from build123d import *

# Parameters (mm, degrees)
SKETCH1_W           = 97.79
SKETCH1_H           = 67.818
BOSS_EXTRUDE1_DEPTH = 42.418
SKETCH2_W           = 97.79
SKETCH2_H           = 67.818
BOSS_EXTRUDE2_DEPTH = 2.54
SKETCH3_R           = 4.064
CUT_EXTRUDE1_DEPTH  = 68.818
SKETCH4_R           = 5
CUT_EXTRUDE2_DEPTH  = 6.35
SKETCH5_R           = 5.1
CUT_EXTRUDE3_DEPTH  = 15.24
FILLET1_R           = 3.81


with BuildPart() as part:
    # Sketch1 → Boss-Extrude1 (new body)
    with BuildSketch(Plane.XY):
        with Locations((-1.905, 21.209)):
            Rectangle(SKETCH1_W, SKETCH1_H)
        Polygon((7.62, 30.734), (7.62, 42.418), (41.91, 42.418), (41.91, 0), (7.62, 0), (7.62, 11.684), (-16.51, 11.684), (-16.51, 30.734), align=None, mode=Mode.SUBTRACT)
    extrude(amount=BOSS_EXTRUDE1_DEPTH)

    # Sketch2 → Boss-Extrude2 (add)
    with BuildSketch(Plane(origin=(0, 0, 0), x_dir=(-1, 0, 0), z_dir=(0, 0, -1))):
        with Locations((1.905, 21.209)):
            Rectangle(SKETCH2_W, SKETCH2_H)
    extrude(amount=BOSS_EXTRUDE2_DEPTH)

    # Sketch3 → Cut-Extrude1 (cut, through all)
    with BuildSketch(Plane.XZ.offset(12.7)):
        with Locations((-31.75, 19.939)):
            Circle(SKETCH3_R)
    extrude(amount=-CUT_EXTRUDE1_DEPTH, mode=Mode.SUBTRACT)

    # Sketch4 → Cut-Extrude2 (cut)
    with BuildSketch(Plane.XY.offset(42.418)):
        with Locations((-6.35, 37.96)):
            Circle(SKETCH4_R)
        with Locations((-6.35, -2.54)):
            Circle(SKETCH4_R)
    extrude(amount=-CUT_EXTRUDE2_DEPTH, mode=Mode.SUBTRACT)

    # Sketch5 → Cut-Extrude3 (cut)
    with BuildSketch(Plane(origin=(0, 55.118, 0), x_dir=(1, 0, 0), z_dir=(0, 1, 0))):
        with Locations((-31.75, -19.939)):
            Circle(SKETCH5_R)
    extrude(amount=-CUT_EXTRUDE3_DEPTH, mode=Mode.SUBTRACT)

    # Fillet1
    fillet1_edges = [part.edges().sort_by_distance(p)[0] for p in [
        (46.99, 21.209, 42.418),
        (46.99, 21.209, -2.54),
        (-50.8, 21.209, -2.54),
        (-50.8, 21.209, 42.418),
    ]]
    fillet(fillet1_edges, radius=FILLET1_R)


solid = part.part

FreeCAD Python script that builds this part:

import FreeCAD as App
import Part
import Sketcher
from FreeCAD import Vector
Q = App.Units.Quantity


def edges_at(feature, points):
    """Names of the edges that pass closest to the given points."""
    edges = feature.Shape.Edges
    near = lambda p: min(range(len(edges)), key=lambda i: edges[i].distToShape(Part.Vertex(*p))[0])
    return sorted({f"Edge{near(p) + 1}" for p in points})

doc = App.newDocument("Part")
body = doc.addObject("PartDesign::Body", "Body")

# Sketch on XY plane
sketch1 = body.newObject("Sketcher::SketchObject", "Sketch")
sketch1.AttachmentSupport = (doc.getObject("XY_Plane"), [""])
sketch1.MapMode = "FlatFace"
sketch1.addGeometry(Part.LineSegment(Vector(-51, 55, 0), Vector(-51, -13, 0)), False)
sketch1.addGeometry(Part.LineSegment(Vector(-51, -13, 0), Vector(47, -13, 0)), False)
sketch1.addGeometry(Part.LineSegment(Vector(47, -13, 0), Vector(47, 55, 0)), False)
sketch1.addGeometry(Part.LineSegment(Vector(47, 55, 0), Vector(-51, 55, 0)), False)
sketch1.addGeometry(Part.LineSegment(Vector(-17, 31, 0), Vector(8, 31, 0)), False)
sketch1.addGeometry(Part.LineSegment(Vector(8, 31, 0), Vector(8, 42, 0)), False)
sketch1.addGeometry(Part.LineSegment(Vector(8, 42, 0), Vector(42, 42, 0)), False)
sketch1.addGeometry(Part.LineSegment(Vector(42, 42, 0), Vector(42, 0, 0)), False)
sketch1.addGeometry(Part.LineSegment(Vector(42, 0, 0), Vector(8, 0, 0)), False)
sketch1.addGeometry(Part.LineSegment(Vector(8, 0, 0), Vector(8, 12, 0)), False)
sketch1.addGeometry(Part.LineSegment(Vector(8, 12, 0), Vector(-17, 12, 0)), False)
sketch1.addGeometry(Part.LineSegment(Vector(-17, 12, 0), Vector(-17, 31, 0)), False)
sketch1.addConstraint(Sketcher.Constraint("Coincident", 0, 2, 1, 1))
sketch1.addConstraint(Sketcher.Constraint("Coincident", 1, 2, 2, 1))
sketch1.addConstraint(Sketcher.Constraint("Coincident", 2, 2, 3, 1))
sketch1.addConstraint(Sketcher.Constraint("Coincident", 3, 2, 0, 1))
sketch1.addConstraint(Sketcher.Constraint("Coincident", 4, 2, 5, 1))
sketch1.addConstraint(Sketcher.Constraint("Coincident", 5, 2, 6, 1))
sketch1.addConstraint(Sketcher.Constraint("Coincident", 6, 2, 7, 1))
sketch1.addConstraint(Sketcher.Constraint("Coincident", 7, 2, 8, 1))
sketch1.addConstraint(Sketcher.Constraint("Coincident", 8, 2, 9, 1))
sketch1.addConstraint(Sketcher.Constraint("Coincident", 9, 2, 10, 1))
sketch1.addConstraint(Sketcher.Constraint("Coincident", 10, 2, 11, 1))
sketch1.addConstraint(Sketcher.Constraint("Coincident", 11, 2, 4, 1))
sketch1.addConstraint(Sketcher.Constraint("Vertical", 0))
sketch1.addConstraint(Sketcher.Constraint("Horizontal", 1))
sketch1.addConstraint(Sketcher.Constraint("Vertical", 2))
sketch1.addConstraint(Sketcher.Constraint("Horizontal", 3))
sketch1.addConstraint(Sketcher.Constraint("Horizontal", 4))
sketch1.addConstraint(Sketcher.Constraint("Vertical", 5))
sketch1.addConstraint(Sketcher.Constraint("Horizontal", 6))
sketch1.addConstraint(Sketcher.Constraint("Vertical", 7))
sketch1.addConstraint(Sketcher.Constraint("Horizontal", 8))
sketch1.addConstraint(Sketcher.Constraint("Vertical", 9))
sketch1.addConstraint(Sketcher.Constraint("Horizontal", 10))
sketch1.addConstraint(Sketcher.Constraint("Vertical", 11))
sketch1.addConstraint(Sketcher.Constraint("PointOnObject", 7, 2, -1))
sketch1.addConstraint(Sketcher.Constraint("Vertical", 5, 2, 8, 2))
sketch1.addConstraint(Sketcher.Constraint("Equal", 5, 9))
sketch1.addConstraint(Sketcher.Constraint("DistanceX", 0, 2, -1, 1, Q("2 in")))
sketch1.addConstraint(Sketcher.Constraint("DistanceX", 1, 1, 1, 2, Q("3.85 in")))
sketch1.addConstraint(Sketcher.Constraint("DistanceX", 4, 1, 4, 2, Q("0.95 in")))
sketch1.addConstraint(Sketcher.Constraint("DistanceX", 6, 1, 6, 2, Q("1.35 in")))
sketch1.addConstraint(Sketcher.Constraint("DistanceY", 0, 2, 0, 1, Q("2.67 in")))
sketch1.addConstraint(Sketcher.Constraint("DistanceY", 5, 1, 5, 2, Q("0.46 in")))
sketch1.addConstraint(Sketcher.Constraint("DistanceY", 7, 2, 7, 1, Q("1.67 in")))
sketch1.addConstraint(Sketcher.Constraint("DistanceY", 0, 2, -1, 1, Q("0.5 in")))
sketch1.addConstraint(Sketcher.Constraint("DistanceX", -1, 1, 4, 2, Q("0.3 in")))
pad1 = body.newObject("PartDesign::Pad", "Pad")
pad1.Profile = sketch1
pad1.Length = Q("1.67 in")

# Sketch on XY plane
sketch2 = body.newObject("Sketcher::SketchObject", "Sketch001")
sketch2.AttachmentSupport = (doc.getObject("XY_Plane"), [""])
sketch2.MapMode = "FlatFace"
sketch2.addGeometry(Part.LineSegment(Vector(47, 55, 0), Vector(47, -13, 0)), False)
sketch2.addGeometry(Part.LineSegment(Vector(47, -13, 0), Vector(-51, -13, 0)), False)
sketch2.addGeometry(Part.LineSegment(Vector(-51, -13, 0), Vector(-51, 55, 0)), False)
sketch2.addGeometry(Part.LineSegment(Vector(-51, 55, 0), Vector(47, 55, 0)), False)
sketch2.addConstraint(Sketcher.Constraint("Coincident", 0, 2, 1, 1))
sketch2.addConstraint(Sketcher.Constraint("Coincident", 1, 2, 2, 1))
sketch2.addConstraint(Sketcher.Constraint("Coincident", 2, 2, 3, 1))
sketch2.addConstraint(Sketcher.Constraint("Coincident", 3, 2, 0, 1))
sketch2.addConstraint(Sketcher.Constraint("Vertical", 0))
sketch2.addConstraint(Sketcher.Constraint("Horizontal", 1))
sketch2.addConstraint(Sketcher.Constraint("Vertical", 2))
sketch2.addConstraint(Sketcher.Constraint("Horizontal", 3))
sketch2.addConstraint(Sketcher.Constraint("DistanceX", 1, 2, -1, 1, Q("2 in")))
sketch2.addConstraint(Sketcher.Constraint("DistanceX", 1, 2, 1, 1, Q("3.85 in")))
sketch2.addConstraint(Sketcher.Constraint("DistanceY", 0, 2, 0, 1, Q("2.67 in")))
sketch2.addConstraint(Sketcher.Constraint("DistanceY", 0, 2, -1, 1, Q("0.5 in")))
pad2 = body.newObject("PartDesign::Pad", "Pad001")
pad2.Profile = sketch2
pad2.Length = Q("0.1 in")
pad2.Reversed = True

# Sketch on XZ plane
sketch3 = body.newObject("Sketcher::SketchObject", "Sketch002")
sketch3.AttachmentSupport = (doc.getObject("XZ_Plane"), [""])
sketch3.MapMode = "FlatFace"
sketch3.AttachmentOffset = App.Placement(Vector(0, 0, 0.5 * 25.4), App.Rotation())
sketch3.addGeometry(Part.Circle(Vector(-31.8, 19.9, 0), Vector(0, 0, 1), 4.1), False)
sketch3.addConstraint(Sketcher.Constraint("Diameter", 0, Q("0.32 in")))
sketch3.addConstraint(Sketcher.Constraint("DistanceX", 0, 3, -1, 1, Q("1.25 in")))
sketch3.addConstraint(Sketcher.Constraint("DistanceY", -1, 1, 0, 3, Q("0.785 in")))
pocket1 = body.newObject("PartDesign::Pocket", "Pocket")
pocket1.Profile = sketch3
pocket1.Type = "ThroughAll"

# Sketch on XY plane
sketch4 = body.newObject("Sketcher::SketchObject", "Sketch003")
sketch4.AttachmentSupport = (doc.getObject("XY_Plane"), [""])
sketch4.MapMode = "FlatFace"
sketch4.AttachmentOffset = App.Placement(Vector(0, 0, 1.67 * 25.4), App.Rotation())
sketch4.addGeometry(Part.Circle(Vector(-6, 38, 0), Vector(0, 0, 1), 5), False)
sketch4.addGeometry(Part.Circle(Vector(-6, -3, 0), Vector(0, 0, 1), 5), False)
sketch4.addConstraint(Sketcher.Constraint("Equal", 0, 1))
sketch4.addConstraint(Sketcher.Constraint("Vertical", 0, 3, 1, 3))
sketch4.addConstraint(Sketcher.Constraint("DistanceY", 1, 3, -1, 1, Q("0.1 in")))
sketch4.addConstraint(Sketcher.Constraint("Diameter", 0, Q("10 mm")))
sketch4.addConstraint(Sketcher.Constraint("DistanceX", 0, 3, -1, 1, Q("0.25 in")))
sketch4.addConstraint(Sketcher.Constraint("DistanceY", -1, 1, 0, 3, Q("37.96 mm")))
pocket2 = body.newObject("PartDesign::Pocket", "Pocket001")
pocket2.Profile = sketch4
pocket2.Length = Q("0.25 in")

# Sketch on XZ plane
sketch5 = body.newObject("Sketcher::SketchObject", "Sketch004")
sketch5.AttachmentSupport = (doc.getObject("XZ_Plane"), [""])
sketch5.MapMode = "FlatFace"
sketch5.AttachmentOffset = App.Placement(Vector(0, 0, -2.17 * 25.4), App.Rotation())
sketch5.addGeometry(Part.Circle(Vector(-32, 20, 0), Vector(0, 0, 1), 5), False)
sketch5.addConstraint(Sketcher.Constraint("Diameter", 0, Q("10.2 mm")))
sketch5.addConstraint(Sketcher.Constraint("DistanceX", 0, 3, -1, 1, Q("1.25 in")))
sketch5.addConstraint(Sketcher.Constraint("DistanceY", -1, 1, 0, 3, Q("0.785 in")))
pocket3 = body.newObject("PartDesign::Pocket", "Pocket002")
pocket3.Profile = sketch5
pocket3.Length = Q("0.6 in")
pocket3.Reversed = True
doc.recompute()

fillet = body.newObject("PartDesign::Fillet", "Fillet")
fillet.Base = (pocket3, edges_at(pocket3, [
    (46.99, 21.209, 42.418),
    (46.99, 21.209, -2.54),
    (-50.8, 21.209, -2.54),
    (-50.8, 21.209, 42.418),
]))
fillet.Radius = Q("0.15 in")

doc.recompute()
